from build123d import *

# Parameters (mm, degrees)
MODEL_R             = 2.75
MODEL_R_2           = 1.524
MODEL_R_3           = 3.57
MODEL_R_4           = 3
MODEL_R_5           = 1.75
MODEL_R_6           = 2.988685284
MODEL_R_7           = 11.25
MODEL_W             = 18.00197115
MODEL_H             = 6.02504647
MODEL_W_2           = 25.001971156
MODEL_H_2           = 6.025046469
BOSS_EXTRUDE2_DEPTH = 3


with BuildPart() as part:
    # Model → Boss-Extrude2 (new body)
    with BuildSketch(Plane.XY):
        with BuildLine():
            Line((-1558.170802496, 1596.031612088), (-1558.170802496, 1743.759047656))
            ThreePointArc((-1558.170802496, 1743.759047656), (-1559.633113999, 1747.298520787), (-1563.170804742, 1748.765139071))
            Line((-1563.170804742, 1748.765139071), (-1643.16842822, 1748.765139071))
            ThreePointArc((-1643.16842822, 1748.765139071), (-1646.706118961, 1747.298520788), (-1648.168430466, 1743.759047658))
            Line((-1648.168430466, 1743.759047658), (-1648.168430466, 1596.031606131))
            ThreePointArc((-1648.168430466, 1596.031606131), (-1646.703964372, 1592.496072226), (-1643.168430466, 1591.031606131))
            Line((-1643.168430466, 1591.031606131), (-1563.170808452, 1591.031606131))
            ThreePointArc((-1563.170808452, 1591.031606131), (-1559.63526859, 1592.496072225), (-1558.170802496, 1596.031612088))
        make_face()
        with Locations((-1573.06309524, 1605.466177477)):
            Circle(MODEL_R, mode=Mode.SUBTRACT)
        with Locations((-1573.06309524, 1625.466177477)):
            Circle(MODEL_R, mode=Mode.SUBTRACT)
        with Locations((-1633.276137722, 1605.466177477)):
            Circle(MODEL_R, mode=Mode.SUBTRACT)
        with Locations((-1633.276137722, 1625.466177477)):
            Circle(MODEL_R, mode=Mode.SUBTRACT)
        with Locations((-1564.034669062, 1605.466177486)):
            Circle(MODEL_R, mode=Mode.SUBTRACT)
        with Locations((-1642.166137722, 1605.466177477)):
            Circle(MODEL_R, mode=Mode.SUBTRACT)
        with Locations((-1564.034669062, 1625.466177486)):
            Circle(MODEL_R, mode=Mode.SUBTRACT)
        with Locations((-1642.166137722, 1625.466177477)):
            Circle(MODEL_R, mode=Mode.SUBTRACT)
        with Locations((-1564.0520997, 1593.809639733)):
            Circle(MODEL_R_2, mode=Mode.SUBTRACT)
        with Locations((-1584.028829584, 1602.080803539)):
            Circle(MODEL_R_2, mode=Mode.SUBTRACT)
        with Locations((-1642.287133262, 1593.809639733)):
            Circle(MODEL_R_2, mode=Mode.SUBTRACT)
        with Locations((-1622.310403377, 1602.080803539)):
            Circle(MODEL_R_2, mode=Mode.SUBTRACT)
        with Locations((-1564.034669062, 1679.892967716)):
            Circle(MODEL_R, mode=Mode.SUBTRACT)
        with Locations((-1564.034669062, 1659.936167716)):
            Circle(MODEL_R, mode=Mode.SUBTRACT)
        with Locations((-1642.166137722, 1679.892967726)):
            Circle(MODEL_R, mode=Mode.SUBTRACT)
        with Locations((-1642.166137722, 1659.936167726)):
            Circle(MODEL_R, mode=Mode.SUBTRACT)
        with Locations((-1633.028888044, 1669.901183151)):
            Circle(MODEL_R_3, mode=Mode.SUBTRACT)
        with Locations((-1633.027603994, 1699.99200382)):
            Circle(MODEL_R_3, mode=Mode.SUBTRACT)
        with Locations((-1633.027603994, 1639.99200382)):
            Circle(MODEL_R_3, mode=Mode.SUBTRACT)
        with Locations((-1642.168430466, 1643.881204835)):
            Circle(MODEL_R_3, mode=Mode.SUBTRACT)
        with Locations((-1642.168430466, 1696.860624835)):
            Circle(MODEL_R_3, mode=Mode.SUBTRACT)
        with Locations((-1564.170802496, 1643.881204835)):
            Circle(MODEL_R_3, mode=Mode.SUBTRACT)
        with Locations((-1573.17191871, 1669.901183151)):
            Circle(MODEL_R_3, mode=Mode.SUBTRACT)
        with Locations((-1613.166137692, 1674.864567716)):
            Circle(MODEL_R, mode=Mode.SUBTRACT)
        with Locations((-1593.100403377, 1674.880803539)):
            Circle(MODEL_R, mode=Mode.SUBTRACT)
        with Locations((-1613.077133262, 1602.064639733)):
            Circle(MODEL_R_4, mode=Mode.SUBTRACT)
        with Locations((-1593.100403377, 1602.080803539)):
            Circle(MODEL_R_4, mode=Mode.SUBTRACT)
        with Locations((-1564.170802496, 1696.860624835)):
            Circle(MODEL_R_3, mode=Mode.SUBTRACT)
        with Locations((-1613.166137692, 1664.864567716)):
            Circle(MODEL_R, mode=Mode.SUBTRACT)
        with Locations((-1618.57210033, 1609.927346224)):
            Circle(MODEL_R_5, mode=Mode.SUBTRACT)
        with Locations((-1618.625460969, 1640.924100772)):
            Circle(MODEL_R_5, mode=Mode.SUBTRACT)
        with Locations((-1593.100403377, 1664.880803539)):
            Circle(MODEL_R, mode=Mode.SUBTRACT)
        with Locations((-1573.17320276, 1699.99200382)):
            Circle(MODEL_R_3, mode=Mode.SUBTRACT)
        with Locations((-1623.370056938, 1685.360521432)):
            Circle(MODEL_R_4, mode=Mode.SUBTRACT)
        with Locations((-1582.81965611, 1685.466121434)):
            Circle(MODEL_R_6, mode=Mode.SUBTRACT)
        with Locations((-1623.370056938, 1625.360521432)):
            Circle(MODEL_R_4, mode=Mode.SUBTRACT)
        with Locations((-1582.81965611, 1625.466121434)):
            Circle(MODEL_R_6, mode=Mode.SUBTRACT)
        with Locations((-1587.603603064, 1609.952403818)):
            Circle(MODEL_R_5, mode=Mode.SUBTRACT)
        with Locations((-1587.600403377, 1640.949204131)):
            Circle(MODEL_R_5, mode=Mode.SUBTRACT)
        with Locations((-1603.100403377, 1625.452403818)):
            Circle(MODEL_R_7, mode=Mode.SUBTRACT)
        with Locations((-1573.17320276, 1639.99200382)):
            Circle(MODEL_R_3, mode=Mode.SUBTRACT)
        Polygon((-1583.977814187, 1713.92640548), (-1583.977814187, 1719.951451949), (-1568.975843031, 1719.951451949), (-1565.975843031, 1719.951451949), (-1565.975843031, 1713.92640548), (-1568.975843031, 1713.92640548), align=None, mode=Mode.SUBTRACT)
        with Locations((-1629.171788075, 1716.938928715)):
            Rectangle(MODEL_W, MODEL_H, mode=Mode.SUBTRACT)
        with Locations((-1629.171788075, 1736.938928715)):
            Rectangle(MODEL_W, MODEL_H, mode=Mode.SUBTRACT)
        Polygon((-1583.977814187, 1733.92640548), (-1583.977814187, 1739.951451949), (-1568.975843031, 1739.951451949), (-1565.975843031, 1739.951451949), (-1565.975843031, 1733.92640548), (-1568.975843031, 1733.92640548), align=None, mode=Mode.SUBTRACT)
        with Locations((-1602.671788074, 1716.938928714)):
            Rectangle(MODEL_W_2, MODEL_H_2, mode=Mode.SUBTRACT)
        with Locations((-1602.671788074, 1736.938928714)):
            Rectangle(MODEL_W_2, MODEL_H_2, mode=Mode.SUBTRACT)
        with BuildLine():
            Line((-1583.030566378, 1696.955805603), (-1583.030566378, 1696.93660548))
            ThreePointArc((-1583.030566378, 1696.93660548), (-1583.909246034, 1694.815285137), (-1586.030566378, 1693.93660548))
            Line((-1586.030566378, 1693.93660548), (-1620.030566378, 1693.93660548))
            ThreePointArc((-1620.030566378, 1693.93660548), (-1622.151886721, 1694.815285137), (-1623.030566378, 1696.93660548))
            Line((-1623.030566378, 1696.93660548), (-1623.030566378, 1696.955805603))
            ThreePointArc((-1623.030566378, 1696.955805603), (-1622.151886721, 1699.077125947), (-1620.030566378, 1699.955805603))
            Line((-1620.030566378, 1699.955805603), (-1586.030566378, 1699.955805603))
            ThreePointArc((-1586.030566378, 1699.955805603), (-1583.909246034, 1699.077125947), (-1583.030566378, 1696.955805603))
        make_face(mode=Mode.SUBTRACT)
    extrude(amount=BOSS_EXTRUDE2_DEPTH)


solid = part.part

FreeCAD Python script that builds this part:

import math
import FreeCAD as App
import Part
import Sketcher
from FreeCAD import Vector
Q = App.Units.Quantity

doc = App.newDocument("Part")
body = doc.addObject("PartDesign::Body", "Body")

# Sketch on XY plane
sketch1 = doc.addObject("Sketcher::SketchObject", "Sketch")
body.addObject(sketch1)
sketch1.AttachmentSupport = (doc.XY_Plane, [""])
sketch1.MapMode = "FlatFace"
sketch1.addGeometry(Part.LineSegment(Vector(-1558.170802, 1596.031612, 0), Vector(-1558.170802, 1743.759048, 0)), False)
sketch1.addGeometry(Part.ArcOfCircle(Part.Circle(Vector(-1563.170799, 1743.765139, 0), Vector(0, 0, 1), 5), math.radians(-0.069802), math.radians(90.000068)), False)
sketch1.addGeometry(Part.LineSegment(Vector(-1563.170805, 1748.765139, 0), Vector(-1643.168428, 1748.765139, 0)), False)
sketch1.addGeometry(Part.ArcOfCircle(Part.Circle(Vector(-1643.168434, 1743.765139, 0), Vector(0, 0, 1), 5), math.radians(89.999932), math.radians(180.069802)), False)
sketch1.addGeometry(Part.LineSegment(Vector(-1648.16843, 1743.759048, 0), Vector(-1648.16843, 1596.031606, 0)), False)
sketch1.addGeometry(Part.ArcOfCircle(Part.Circle(Vector(-1643.16843, 1596.031606, 0), Vector(0, 0, 1), 5), math.radians(-180), math.radians(-90)), False)
sketch1.addGeometry(Part.LineSegment(Vector(-1643.16843, 1591.031606, 0), Vector(-1563.170808, 1591.031606, 0)), False)
sketch1.addGeometry(Part.ArcOfCircle(Part.Circle(Vector(-1563.170802, 1596.031606, 0), Vector(0, 0, 1), 5), math.radians(-90.000068), math.radians(0.000068)), False)
sketch1.addGeometry(Part.Circle(Vector(-1642.287133, 1593.80964, 0), Vector(0, 0, 1), 1.524), False)
sketch1.addGeometry(Part.Circle(Vector(-1642.166138, 1605.466177, 0), Vector(0, 0, 1), 2.75), False)
sketch1.addGeometry(Part.Circle(Vector(-1633.276138, 1605.466177, 0), Vector(0, 0, 1), 2.75), False)
sketch1.addGeometry(Part.Circle(Vector(-1642.166138, 1625.466177, 0), Vector(0, 0, 1), 2.75), False)
sketch1.addGeometry(Part.Circle(Vector(-1633.276138, 1625.466177, 0), Vector(0, 0, 1), 2.75), False)
sketch1.addGeometry(Part.Circle(Vector(-1622.310403, 1602.080804, 0), Vector(0, 0, 1), 1.524), False)
sketch1.addGeometry(Part.Circle(Vector(-1618.5721, 1609.927346, 0), Vector(0, 0, 1), 1.75), False)
sketch1.addGeometry(Part.Circle(Vector(-1613.077133, 1602.06464, 0), Vector(0, 0, 1), 3), False)
sketch1.addGeometry(Part.Circle(Vector(-1623.370057, 1625.360521, 0), Vector(0, 0, 1), 3), False)
sketch1.addGeometry(Part.Circle(Vector(-1642.16843, 1643.881205, 0), Vector(0, 0, 1), 3.57), False)
sketch1.addGeometry(Part.Circle(Vector(-1633.027604, 1639.992004, 0), Vector(0, 0, 1), 3.57), False)
sketch1.addGeometry(Part.Circle(Vector(-1642.166138, 1659.936168, 0), Vector(0, 0, 1), 2.75), False)
sketch1.addGeometry(Part.Circle(Vector(-1618.625461, 1640.924101, 0), Vector(0, 0, 1), 1.75), False)
sketch1.addGeometry(Part.Circle(Vector(-1613.166138, 1664.864568, 0), Vector(0, 0, 1), 2.75), False)
sketch1.addGeometry(Part.Circle(Vector(-1593.100403, 1602.080804, 0), Vector(0, 0, 1), 3), False)
sketch1.addGeometry(Part.Circle(Vector(-1587.603603, 1609.952404, 0), Vector(0, 0, 1), 1.75), False)
sketch1.addGeometry(Part.Circle(Vector(-1584.02883, 1602.080804, 0), Vector(0, 0, 1), 1.524), False)
sketch1.addGeometry(Part.Circle(Vector(-1603.100403, 1625.452404, 0), Vector(0, 0, 1), 11.25), False)
sketch1.addGeometry(Part.Circle(Vector(-1582.819656, 1625.466121, 0), Vector(0, 0, 1), 2.988685), False)
sketch1.addGeometry(Part.Circle(Vector(-1573.063095, 1605.466177, 0), Vector(0, 0, 1), 2.75), False)
sketch1.addGeometry(Part.Circle(Vector(-1564.0521, 1593.80964, 0), Vector(0, 0, 1), 1.524), False)
sketch1.addGeometry(Part.Circle(Vector(-1564.034669, 1605.466177, 0), Vector(0, 0, 1), 2.75), False)
sketch1.addGeometry(Part.Circle(Vector(-1573.063095, 1625.466177, 0), Vector(0, 0, 1), 2.75), False)
sketch1.addGeometry(Part.Circle(Vector(-1564.034669, 1625.466177, 0), Vector(0, 0, 1), 2.75), False)
sketch1.addGeometry(Part.Circle(Vector(-1587.600403, 1640.949204, 0), Vector(0, 0, 1), 1.75), False)
sketch1.addGeometry(Part.Circle(Vector(-1593.100403, 1664.880804, 0), Vector(0, 0, 1), 2.75), False)
sketch1.addGeometry(Part.Circle(Vector(-1573.173203, 1639.992004, 0), Vector(0, 0, 1), 3.57), False)
sketch1.addGeometry(Part.Circle(Vector(-1564.170802, 1643.881205, 0), Vector(0, 0, 1), 3.57), False)
sketch1.addGeometry(Part.Circle(Vector(-1564.034669, 1659.936168, 0), Vector(0, 0, 1), 2.75), False)
sketch1.addGeometry(Part.Circle(Vector(-1642.166138, 1679.892968, 0), Vector(0, 0, 1), 2.75), False)
sketch1.addGeometry(Part.Circle(Vector(-1633.028888, 1669.901183, 0), Vector(0, 0, 1), 3.57), False)
sketch1.addGeometry(Part.Circle(Vector(-1642.16843, 1696.860625, 0), Vector(0, 0, 1), 3.57), False)
sketch1.addGeometry(Part.Circle(Vector(-1633.027604, 1699.992004, 0), Vector(0, 0, 1), 3.57), False)
sketch1.addGeometry(Part.Circle(Vector(-1613.166138, 1674.864568, 0), Vector(0, 0, 1), 2.75), False)
sketch1.addGeometry(Part.Circle(Vector(-1623.370057, 1685.360521, 0), Vector(0, 0, 1), 3), False)
sketch1.addGeometry(Part.LineSegment(Vector(-1620.170803, 1713.926405, 0), Vector(-1638.172774, 1713.926405, 0)), False)
sketch1.addGeometry(Part.LineSegment(Vector(-1638.172774, 1713.926405, 0), Vector(-1638.172774, 1719.951452, 0)), False)
sketch1.addGeometry(Part.LineSegment(Vector(-1638.172774, 1719.951452, 0), Vector(-1620.170803, 1719.951452, 0)), False)
sketch1.addGeometry(Part.LineSegment(Vector(-1620.170803, 1719.951452, 0), Vector(-1620.170803, 1713.926405, 0)), False)
sketch1.addGeometry(Part.LineSegment(Vector(-1620.170803, 1733.926405, 0), Vector(-1638.172774, 1733.926405, 0)), False)
sketch1.addGeometry(Part.LineSegment(Vector(-1638.172774, 1733.926405, 0), Vector(-1638.172774, 1739.951452, 0)), False)
sketch1.addGeometry(Part.LineSegment(Vector(-1638.172774, 1739.951452, 0), Vector(-1620.170803, 1739.951452, 0)), False)
sketch1.addGeometry(Part.LineSegment(Vector(-1620.170803, 1739.951452, 0), Vector(-1620.170803, 1733.926405, 0)), False)
sketch1.addGeometry(Part.Circle(Vector(-1593.100403, 1674.880804, 0), Vector(0, 0, 1), 2.75), False)
sketch1.addGeometry(Part.ArcOfCircle(Part.Circle(Vector(-1586.030566, 1696.955806, 0), Vector(0, 0, 1), 3), math.radians(0), math.radians(90)), False)
sketch1.addGeometry(Part.LineSegment(Vector(-1583.030566, 1696.955806, 0), Vector(-1583.030566, 1696.936605, 0)), False)
sketch1.addGeometry(Part.ArcOfCircle(Part.Circle(Vector(-1586.030566, 1696.936605, 0), Vector(0, 0, 1), 3), math.radians(-90), math.radians(0)), False)
sketch1.addGeometry(Part.LineSegment(Vector(-1586.030566, 1693.936605, 0), Vector(-1620.030566, 1693.936605, 0)), False)
sketch1.addGeometry(Part.ArcOfCircle(Part.Circle(Vector(-1620.030566, 1696.936605, 0), Vector(0, 0, 1), 3), math.radians(-180), math.radians(-90)), False)
sketch1.addGeometry(Part.LineSegment(Vector(-1623.030566, 1696.936605, 0), Vector(-1623.030566, 1696.955806, 0)), False)
sketch1.addGeometry(Part.ArcOfCircle(Part.Circle(Vector(-1620.030566, 1696.955806, 0), Vector(0, 0, 1), 3), math.radians(90), math.radians(180)), False)
sketch1.addGeometry(Part.LineSegment(Vector(-1620.030566, 1699.955806, 0), Vector(-1586.030566, 1699.955806, 0)), False)
sketch1.addGeometry(Part.Circle(Vector(-1582.819656, 1685.466121, 0), Vector(0, 0, 1), 2.988685), False)
sketch1.addGeometry(Part.Circle(Vector(-1573.171919, 1669.901183, 0), Vector(0, 0, 1), 3.57), False)
sketch1.addGeometry(Part.Circle(Vector(-1564.034669, 1679.892968, 0), Vector(0, 0, 1), 2.75), False)
sketch1.addGeometry(Part.Circle(Vector(-1573.173203, 1699.992004, 0), Vector(0, 0, 1), 3.57), False)
sketch1.addGeometry(Part.Circle(Vector(-1564.170802, 1696.860625, 0), Vector(0, 0, 1), 3.57), False)
sketch1.addGeometry(Part.LineSegment(Vector(-1590.170802, 1713.926405, 0), Vector(-1615.172774, 1713.926405, 0)), False)
sketch1.addGeometry(Part.LineSegment(Vector(-1615.172774, 1713.926405, 0), Vector(-1615.172774, 1719.951452, 0)), False)
sketch1.addGeometry(Part.LineSegment(Vector(-1615.172774, 1719.951452, 0), Vector(-1590.170802, 1719.951452, 0)), False)
sketch1.addGeometry(Part.LineSegment(Vector(-1590.170802, 1719.951452, 0), Vector(-1590.170802, 1713.926405, 0)), False)
sketch1.addGeometry(Part.LineSegment(Vector(-1590.170802, 1733.926405, 0), Vector(-1615.172774, 1733.926405, 0)), False)
sketch1.addGeometry(Part.LineSegment(Vector(-1615.172774, 1733.926405, 0), Vector(-1615.172774, 1739.951452, 0)), False)
sketch1.addGeometry(Part.LineSegment(Vector(-1615.172774, 1739.951452, 0), Vector(-1590.170802, 1739.951452, 0)), False)
sketch1.addGeometry(Part.LineSegment(Vector(-1590.170802, 1739.951452, 0), Vector(-1590.170802, 1733.926405, 0)), False)
sketch1.addGeometry(Part.LineSegment(Vector(-1565.975843, 1713.926405, 0), Vector(-1583.977814, 1713.926405, 0)), False)
sketch1.addGeometry(Part.LineSegment(Vector(-1583.977814, 1713.926405, 0), Vector(-1583.977814, 1719.951452, 0)), False)
sketch1.addGeometry(Part.LineSegment(Vector(-1583.977814, 1719.951452, 0), Vector(-1565.975843, 1719.951452, 0)), False)
sketch1.addGeometry(Part.LineSegment(Vector(-1565.975843, 1719.951452, 0), Vector(-1565.975843, 1713.926405, 0)), False)
sketch1.addGeometry(Part.LineSegment(Vector(-1565.975843, 1733.926405, 0), Vector(-1583.977814, 1733.926405, 0)), False)
sketch1.addGeometry(Part.LineSegment(Vector(-1583.977814, 1733.926405, 0), Vector(-1583.977814, 1739.951452, 0)), False)
sketch1.addGeometry(Part.LineSegment(Vector(-1583.977814, 1739.951452, 0), Vector(-1565.975843, 1739.951452, 0)), False)
sketch1.addGeometry(Part.LineSegment(Vector(-1565.975843, 1739.951452, 0), Vector(-1565.975843, 1733.926405, 0)), False)
sketch1.addConstraint(Sketcher.Constraint("Coincident", 0, 2, 1, 1))
sketch1.addConstraint(Sketcher.Constraint("Tangent", 1, 2, 2, 1))
sketch1.addConstraint(Sketcher.Constraint("Tangent", 2, 2, 3, 1))
sketch1.addConstraint(Sketcher.Constraint("Coincident", 3, 2, 4, 1))
sketch1.addConstraint(Sketcher.Constraint("Tangent", 4, 2, 5, 1))
sketch1.addConstraint(Sketcher.Constraint("Tangent", 5, 2, 6, 1))
sketch1.addConstraint(Sketcher.Constraint("Tangent", 6, 2, 7, 1))
sketch1.addConstraint(Sketcher.Constraint("Tangent", 7, 2, 0, 1))
sketch1.addConstraint(Sketcher.Constraint("Coincident", 43, 2, 44, 1))
sketch1.addConstraint(Sketcher.Constraint("Coincident", 44, 2, 45, 1))
sketch1.addConstraint(Sketcher.Constraint("Coincident", 45, 2, 46, 1))
sketch1.addConstraint(Sketcher.Constraint("Coincident", 46, 2, 43, 1))
sketch1.addConstraint(Sketcher.Constraint("Coincident", 47, 2, 48, 1))
sketch1.addConstraint(Sketcher.Constraint("Coincident", 48, 2, 49, 1))
sketch1.addConstraint(Sketcher.Constraint("Coincident", 49, 2, 50, 1))
sketch1.addConstraint(Sketcher.Constraint("Coincident", 50, 2, 47, 1))
sketch1.addConstraint(Sketcher.Constraint("Tangent", 52, 1, 53, 1))
sketch1.addConstraint(Sketcher.Constraint("Tangent", 53, 2, 54, 2))
sketch1.addConstraint(Sketcher.Constraint("Tangent", 54, 1, 55, 1))
sketch1.addConstraint(Sketcher.Constraint("Tangent", 55, 2, 56, 2))
sketch1.addConstraint(Sketcher.Constraint("Tangent", 56, 1, 57, 1))
sketch1.addConstraint(Sketcher.Constraint("Tangent", 57, 2, 58, 2))
sketch1.addConstraint(Sketcher.Constraint("Tangent", 58, 1, 59, 1))
sketch1.addConstraint(Sketcher.Constraint("Tangent", 59, 2, 52, 2))
sketch1.addConstraint(Sketcher.Constraint("Coincident", 65, 2, 66, 1))
sketch1.addConstraint(Sketcher.Constraint("Coincident", 66, 2, 67, 1))
sketch1.addConstraint(Sketcher.Constraint("Coincident", 67, 2, 68, 1))
sketch1.addConstraint(Sketcher.Constraint("Coincident", 68, 2, 65, 1))
sketch1.addConstraint(Sketcher.Constraint("Coincident", 69, 2, 70, 1))
sketch1.addConstraint(Sketcher.Constraint("Coincident", 70, 2, 71, 1))
sketch1.addConstraint(Sketcher.Constraint("Coincident", 71, 2, 72, 1))
sketch1.addConstraint(Sketcher.Constraint("Coincident", 72, 2, 69, 1))
sketch1.addConstraint(Sketcher.Constraint("Coincident", 73, 2, 74, 1))
sketch1.addConstraint(Sketcher.Constraint("Coincident", 74, 2, 75, 1))
sketch1.addConstraint(Sketcher.Constraint("Coincident", 75, 2, 76, 1))
sketch1.addConstraint(Sketcher.Constraint("Coincident", 76, 2, 73, 1))
sketch1.addConstraint(Sketcher.Constraint("Coincident", 77, 2, 78, 1))
sketch1.addConstraint(Sketcher.Constraint("Coincident", 78, 2, 79, 1))
sketch1.addConstraint(Sketcher.Constraint("Coincident", 79, 2, 80, 1))
sketch1.addConstraint(Sketcher.Constraint("Coincident", 80, 2, 77, 1))
sketch1.addConstraint(Sketcher.Constraint("Vertical", 0))
sketch1.addConstraint(Sketcher.Constraint("Horizontal", 2))
sketch1.addConstraint(Sketcher.Constraint("Vertical", 4))
sketch1.addConstraint(Sketcher.Constraint("Horizontal", 6))
sketch1.addConstraint(Sketcher.Constraint("Horizontal", 43))
sketch1.addConstraint(Sketcher.Constraint("Vertical", 44))
sketch1.addConstraint(Sketcher.Constraint("Horizontal", 45))
sketch1.addConstraint(Sketcher.Constraint("Vertical", 46))
sketch1.addConstraint(Sketcher.Constraint("Horizontal", 47))
sketch1.addConstraint(Sketcher.Constraint("Vertical", 48))
sketch1.addConstraint(Sketcher.Constraint("Horizontal", 49))
sketch1.addConstraint(Sketcher.Constraint("Vertical", 50))
sketch1.addConstraint(Sketcher.Constraint("Vertical", 53))
sketch1.addConstraint(Sketcher.Constraint("Horizontal", 55))
sketch1.addConstraint(Sketcher.Constraint("Vertical", 57))
sketch1.addConstraint(Sketcher.Constraint("Horizontal", 59))
sketch1.addConstraint(Sketcher.Constraint("Horizontal", 65))
sketch1.addConstraint(Sketcher.Constraint("Vertical", 66))
sketch1.addConstraint(Sketcher.Constraint("Horizontal", 67))
sketch1.addConstraint(Sketcher.Constraint("Vertical", 68))
sketch1.addConstraint(Sketcher.Constraint("Horizontal", 69))
sketch1.addConstraint(Sketcher.Constraint("Vertical", 70))
sketch1.addConstraint(Sketcher.Constraint("Horizontal", 71))
sketch1.addConstraint(Sketcher.Constraint("Vertical", 72))
sketch1.addConstraint(Sketcher.Constraint("Horizontal", 73))
sketch1.addConstraint(Sketcher.Constraint("Vertical", 74))
sketch1.addConstraint(Sketcher.Constraint("Horizontal", 75))
sketch1.addConstraint(Sketcher.Constraint("Vertical", 76))
sketch1.addConstraint(Sketcher.Constraint("Horizontal", 77))
sketch1.addConstraint(Sketcher.Constraint("Vertical", 78))
sketch1.addConstraint(Sketcher.Constraint("Horizontal", 79))
sketch1.addConstraint(Sketcher.Constraint("Vertical", 80))
sketch1.addConstraint(Sketcher.Constraint("Equal", 1, 3))
sketch1.addConstraint(Sketcher.Constraint("Equal", 3, 5))
sketch1.addConstraint(Sketcher.Constraint("Equal", 5, 7))
sketch1.addConstraint(Sketcher.Constraint("Equal", 9, 10))
sketch1.addConstraint(Sketcher.Constraint("Equal", 10, 11))
sketch1.addConstraint(Sketcher.Constraint("Equal", 11, 12))
sketch1.addConstraint(Sketcher.Constraint("Equal", 8, 13))
sketch1.addConstraint(Sketcher.Constraint("Equal", 15, 16))
sketch1.addConstraint(Sketcher.Constraint("Equal", 17, 18))
sketch1.addConstraint(Sketcher.Constraint("Equal", 12, 19))
sketch1.addConstraint(Sketcher.Constraint("Equal", 14, 20))
sketch1.addConstraint(Sketcher.Constraint("Equal", 19, 21))
sketch1.addConstraint(Sketcher.Constraint("Equal", 16, 22))
sketch1.addConstraint(Sketcher.Constraint("Equal", 20, 23))
sketch1.addConstraint(Sketcher.Constraint("Equal", 13, 24))
sketch1.addConstraint(Sketcher.Constraint("Equal", 21, 27))
sketch1.addConstraint(Sketcher.Constraint("Equal", 24, 28))
sketch1.addConstraint(Sketcher.Constraint("Equal", 27, 29))
sketch1.addConstraint(Sketcher.Constraint("Equal", 29, 30))
sketch1.addConstraint(Sketcher.Constraint("Equal", 30, 31))
sketch1.addConstraint(Sketcher.Constraint("Equal", 23, 32))
sketch1.addConstraint(Sketcher.Constraint("Equal", 31, 33))
sketch1.addConstraint(Sketcher.Constraint("Equal", 18, 34))
sketch1.addConstraint(Sketcher.Constraint("Equal", 34, 35))
sketch1.addConstraint(Sketcher.Constraint("Equal", 33, 36))
sketch1.addConstraint(Sketcher.Constraint("Equal", 36, 37))
sketch1.addConstraint(Sketcher.Constraint("Equal", 35, 38))
sketch1.addConstraint(Sketcher.Constraint("Equal", 38, 39))
sketch1.addConstraint(Sketcher.Constraint("Equal", 39, 40))
sketch1.addConstraint(Sketcher.Constraint("Equal", 37, 41))
sketch1.addConstraint(Sketcher.Constraint("Equal", 22, 42))
sketch1.addConstraint(Sketcher.Constraint("Equal", 41, 51))
sketch1.addConstraint(Sketcher.Constraint("Equal", 42, 52))
sketch1.addConstraint(Sketcher.Constraint("Equal", 52, 54))
sketch1.addConstraint(Sketcher.Constraint("Equal", 54, 56))
sketch1.addConstraint(Sketcher.Constraint("Equal", 56, 58))
sketch1.addConstraint(Sketcher.Constraint("Equal", 26, 60))
sketch1.addConstraint(Sketcher.Constraint("Equal", 40, 61))
sketch1.addConstraint(Sketcher.Constraint("Equal", 51, 62))
sketch1.addConstraint(Sketcher.Constraint("Equal", 61, 63))
sketch1.addConstraint(Sketcher.Constraint("Equal", 63, 64))
sketch1.addConstraint(Sketcher.Constraint("Horizontal", 9, 3, 10, 3))
sketch1.addConstraint(Sketcher.Constraint("Horizontal", 11, 3, 12, 3))
sketch1.addConstraint(Sketcher.Constraint("Horizontal", 13, 3, 22, 3))
sketch1.addConstraint(Sketcher.Constraint("Horizontal", 22, 3, 24, 3))
sketch1.addConstraint(Sketcher.Constraint("Horizontal", 10, 3, 27, 3))
sketch1.addConstraint(Sketcher.Constraint("Horizontal", 8, 3, 28, 3))
sketch1.addConstraint(Sketcher.Constraint("Horizontal", 27, 3, 29, 3))
sketch1.addConstraint(Sketcher.Constraint("Horizontal", 12, 3, 30, 3))
sketch1.addConstraint(Sketcher.Constraint("Horizontal", 30, 3, 31, 3))
sketch1.addConstraint(Sketcher.Constraint("Horizontal", 18, 3, 34, 3))
sketch1.addConstraint(Sketcher.Constraint("Horizontal", 17, 3, 35, 3))
sketch1.addConstraint(Sketcher.Constraint("Horizontal", 19, 3, 36, 3))
sketch1.addConstraint(Sketcher.Constraint("Horizontal", 38, 3, 61, 3))
sketch1.addConstraint(Sketcher.Constraint("Horizontal", 37, 3, 62, 3))
sketch1.addConstraint(Sketcher.Constraint("Horizontal", 40, 3, 63, 3))
sketch1.addConstraint(Sketcher.Constraint("Horizontal", 39, 3, 64, 3))
sketch1.addConstraint(Sketcher.Constraint("Horizontal", 0, 2, 3, 2))
sketch1.addConstraint(Sketcher.Constraint("Horizontal", 46, 2, 65, 2))
sketch1.addConstraint(Sketcher.Constraint("Horizontal", 45, 2, 66, 2))
sketch1.addConstraint(Sketcher.Constraint("Horizontal", 50, 2, 69, 2))
sketch1.addConstraint(Sketcher.Constraint("Horizontal", 49, 2, 70, 2))
sketch1.addConstraint(Sketcher.Constraint("Horizontal", 68, 2, 73, 2))
sketch1.addConstraint(Sketcher.Constraint("Horizontal", 67, 2, 74, 2))
sketch1.addConstraint(Sketcher.Constraint("Horizontal", 72, 2, 77, 2))
sketch1.addConstraint(Sketcher.Constraint("Horizontal", 71, 2, 78, 2))
sketch1.addConstraint(Sketcher.Constraint("Vertical", 9, 3, 11, 3))
sketch1.addConstraint(Sketcher.Constraint("Vertical", 10, 3, 12, 3))
sketch1.addConstraint(Sketcher.Constraint("Vertical", 11, 3, 19, 3))
sketch1.addConstraint(Sketcher.Constraint("Vertical", 27, 3, 30, 3))
sketch1.addConstraint(Sketcher.Constraint("Vertical", 29, 3, 31, 3))
sketch1.addConstraint(Sketcher.Constraint("Vertical", 22, 3, 33, 3))
sketch1.addConstraint(Sketcher.Constraint("Vertical", 31, 3, 36, 3))
sketch1.addConstraint(Sketcher.Constraint("Vertical", 19, 3, 37, 3))
sketch1.addConstraint(Sketcher.Constraint("Vertical", 17, 3, 39, 3))
sketch1.addConstraint(Sketcher.Constraint("Vertical", 18, 3, 40, 3))
sketch1.addConstraint(Sketcher.Constraint("Vertical", 21, 3, 41, 3))
sketch1.addConstraint(Sketcher.Constraint("Vertical", 16, 3, 42, 3))
sketch1.addConstraint(Sketcher.Constraint("Vertical", 33, 3, 51, 3))
sketch1.addConstraint(Sketcher.Constraint("Vertical", 26, 3, 60, 3))
sketch1.addConstraint(Sketcher.Constraint("Vertical", 36, 3, 62, 3))
sketch1.addConstraint(Sketcher.Constraint("Vertical", 34, 3, 63, 3))
sketch1.addConstraint(Sketcher.Constraint("Vertical", 35, 3, 64, 3))
sketch1.addConstraint(Sketcher.Constraint("Vertical", 44, 2, 47, 2))
sketch1.addConstraint(Sketcher.Constraint("Vertical", 46, 2, 49, 2))
sketch1.addConstraint(Sketcher.Constraint("Vertical", 66, 2, 69, 2))
sketch1.addConstraint(Sketcher.Constraint("Vertical", 68, 2, 71, 2))
sketch1.addConstraint(Sketcher.Constraint("Vertical", 74, 2, 77, 2))
sketch1.addConstraint(Sketcher.Constraint("Vertical", 76, 2, 79, 2))
sketch1.addConstraint(Sketcher.Constraint("Equal", 49, 73))
sketch1.addConstraint(Sketcher.Constraint("Equal", 46, 48))
sketch1.addConstraint(Sketcher.Constraint("Diameter", 15, Q("6 mm")))
sketch1.addConstraint(Sketcher.Constraint("Radius", 1, Q("5 mm")))
sketch1.addConstraint(Sketcher.Constraint("Diameter", 9, Q("5.5 mm")))
sketch1.addConstraint(Sketcher.Constraint("Diameter", 14, Q("3.5 mm")))
sketch1.addConstraint(Sketcher.Constraint("Diameter", 25, Q("22.5 mm")))
sketch1.addConstraint(Sketcher.Constraint("Diameter", 17, Q("7.14 mm")))
sketch1.addConstraint(Sketcher.Constraint("DistanceX", 55, 2, 55, 1, Q("34 mm")))
sketch1.addConstraint(Sketcher.Constraint("Diameter", 8, Q("3.048 mm")))
sketch1.addConstraint(Sketcher.Constraint("Diameter", 26, Q("5.977371 mm")))
sketch1.addConstraint(Sketcher.Constraint("DistanceY", 53, 2, 53, 1, Q("0.0192 mm")))
sketch1.addConstraint(Sketcher.Constraint("DistanceX", 43, 2, 43, 1, Q("18.001971 mm")))
sketch1.addConstraint(Sketcher.Constraint("DistanceX", 65, 2, 65, 1, Q("25.001971 mm")))
sketch1.addConstraint(Sketcher.Constraint("DistanceY", 4, 2, 4, 1, Q("147.727442 mm")))
sketch1.addConstraint(Sketcher.Constraint("DistanceX", 1, 3, -1, 1, Q("1563.170799 mm")))
sketch1.addConstraint(Sketcher.Constraint("DistanceX", 14, 3, -1, 1, Q("1618.5721 mm")))
sketch1.addConstraint(Sketcher.Constraint("DistanceY", -1, 1, 20, 3, Q("1640.924101 mm")))
sketch1.addConstraint(Sketcher.Constraint("DistanceX", 28, 3, -1, 1, Q("1564.0521 mm")))
sketch1.addConstraint(Sketcher.Constraint("DistanceX", 2, 2, 2, 1, Q("79.997623 mm")))
sketch1.addConstraint(Sketcher.Constraint("DistanceY", 44, 1, 44, 2, Q("6.025046 mm")))
sketch1.addConstraint(Sketcher.Constraint("DistanceY", -1, 1, 1, 3, Q("1743.765139 mm")))
sketch1.addConstraint(Sketcher.Constraint("DistanceY", -1, 1, 8, 3, Q("1593.80964 mm")))
sketch1.addConstraint(Sketcher.Constraint("DistanceY", -1, 1, 15, 3, Q("1602.06464 mm")))
sketch1.addConstraint(Sketcher.Constraint("DistanceY", -1, 1, 16, 3, Q("1625.360521 mm")))
sketch1.addConstraint(Sketcher.Constraint("DistanceX", 17, 3, -1, 1, Q("1642.16843 mm")))
sketch1.addConstraint(Sketcher.Constraint("DistanceX", 20, 3, -1, 1, Q("1618.625461 mm")))
sketch1.addConstraint(Sketcher.Constraint("DistanceX", 24, 3, -1, 1, Q("1584.02883 mm")))
sketch1.addConstraint(Sketcher.Constraint("DistanceY", -1, 1, 26, 3, Q("1625.466121 mm")))
sketch1.addConstraint(Sketcher.Constraint("DistanceX", 29, 3, -1, 1, Q("1564.034669 mm")))
sketch1.addConstraint(Sketcher.Constraint("DistanceX", 38, 3, -1, 1, Q("1633.028888 mm")))
sketch1.addConstraint(Sketcher.Constraint("DistanceY", -1, 1, 42, 3, Q("1685.360521 mm")))
sketch1.addConstraint(Sketcher.Constraint("DistanceY", -1, 1, 60, 3, Q("1685.466121 mm")))
sketch1.addConstraint(Sketcher.Constraint("DistanceX", 61, 3, -1, 1, Q("1573.171919 mm")))
sketch1.addConstraint(Sketcher.Constraint("DistanceY", -1, 1, 44, 2, Q("1719.951452 mm")))
sketch1.addConstraint(Sketcher.Constraint("DistanceY", -1, 1, 48, 2, Q("1739.951452 mm")))
sketch1.addConstraint(Sketcher.Constraint("DistanceY", -1, 1, 5, 3, Q("1596.031606 mm")))
sketch1.addConstraint(Sketcher.Constraint("DistanceX", 8, 3, -1, 1, Q("1642.287133 mm")))
sketch1.addConstraint(Sketcher.Constraint("DistanceX", 9, 3, -1, 1, Q("1642.166138 mm")))
sketch1.addConstraint(Sketcher.Constraint("DistanceY", -1, 1, 9, 3, Q("1605.466177 mm")))
sketch1.addConstraint(Sketcher.Constraint("DistanceX", 10, 3, -1, 1, Q("1633.276138 mm")))
sketch1.addConstraint(Sketcher.Constraint("DistanceY", -1, 1, 11, 3, Q("1625.466177 mm")))
sketch1.addConstraint(Sketcher.Constraint("DistanceX", 13, 3, -1, 1, Q("1622.310403 mm")))
sketch1.addConstraint(Sketcher.Constraint("DistanceY", -1, 1, 13, 3, Q("1602.080804 mm")))
sketch1.addConstraint(Sketcher.Constraint("DistanceY", -1, 1, 14, 3, Q("1609.927346 mm")))
sketch1.addConstraint(Sketcher.Constraint("DistanceX", 15, 3, -1, 1, Q("1613.077133 mm")))
sketch1.addConstraint(Sketcher.Constraint("DistanceX", 16, 3, -1, 1, Q("1623.370057 mm")))
sketch1.addConstraint(Sketcher.Constraint("DistanceY", -1, 1, 17, 3, Q("1643.881205 mm")))
sketch1.addConstraint(Sketcher.Constraint("DistanceX", 18, 3, -1, 1, Q("1633.027604 mm")))
sketch1.addConstraint(Sketcher.Constraint("DistanceY", -1, 1, 18, 3, Q("1639.992004 mm")))
sketch1.addConstraint(Sketcher.Constraint("DistanceY", -1, 1, 19, 3, Q("1659.936168 mm")))
sketch1.addConstraint(Sketcher.Constraint("DistanceX", 21, 3, -1, 1, Q("1613.166138 mm")))
sketch1.addConstraint(Sketcher.Constraint("DistanceY", -1, 1, 21, 3, Q("1664.864568 mm")))
sketch1.addConstraint(Sketcher.Constraint("DistanceX", 22, 3, -1, 1, Q("1593.100403 mm")))
sketch1.addConstraint(Sketcher.Constraint("DistanceX", 23, 3, -1, 1, Q("1587.603603 mm")))
sketch1.addConstraint(Sketcher.Constraint("DistanceY", -1, 1, 23, 3, Q("1609.952404 mm")))
sketch1.addConstraint(Sketcher.Constraint("DistanceX", 25, 3, -1, 1, Q("1603.100403 mm")))
sketch1.addConstraint(Sketcher.Constraint("DistanceY", -1, 1, 25, 3, Q("1625.452404 mm")))
sketch1.addConstraint(Sketcher.Constraint("DistanceX", 26, 3, -1, 1, Q("1582.819656 mm")))
sketch1.addConstraint(Sketcher.Constraint("DistanceX", 27, 3, -1, 1, Q("1573.063095 mm")))
sketch1.addConstraint(Sketcher.Constraint("DistanceX", 32, 3, -1, 1, Q("1587.600403 mm")))
sketch1.addConstraint(Sketcher.Constraint("DistanceY", -1, 1, 32, 3, Q("1640.949204 mm")))
sketch1.addConstraint(Sketcher.Constraint("DistanceY", -1, 1, 33, 3, Q("1664.880804 mm")))
sketch1.addConstraint(Sketcher.Constraint("DistanceX", 34, 3, -1, 1, Q("1573.173203 mm")))
sketch1.addConstraint(Sketcher.Constraint("DistanceX", 35, 3, -1, 1, Q("1564.170802 mm")))
sketch1.addConstraint(Sketcher.Constraint("DistanceY", -1, 1, 37, 3, Q("1679.892968 mm")))
sketch1.addConstraint(Sketcher.Constraint("DistanceY", -1, 1, 38, 3, Q("1669.901183 mm")))
sketch1.addConstraint(Sketcher.Constraint("DistanceY", -1, 1, 39, 3, Q("1696.860625 mm")))
sketch1.addConstraint(Sketcher.Constraint("DistanceY", -1, 1, 40, 3, Q("1699.992004 mm")))
sketch1.addConstraint(Sketcher.Constraint("DistanceY", -1, 1, 41, 3, Q("1674.864568 mm")))
sketch1.addConstraint(Sketcher.Constraint("DistanceY", -1, 1, 51, 3, Q("1674.880804 mm")))
sketch1.addConstraint(Sketcher.Constraint("DistanceX", 52, 3, -1, 1, Q("1586.030566 mm")))
sketch1.addConstraint(Sketcher.Constraint("DistanceY", -1, 1, 52, 3, Q("1696.955806 mm")))
sketch1.addConstraint(Sketcher.Constraint("DistanceX", 43, 2, -1, 1, Q("1638.172774 mm")))
sketch1.addConstraint(Sketcher.Constraint("DistanceX", 65, 2, -1, 1, Q("1615.172774 mm")))
sketch1.addConstraint(Sketcher.Constraint("DistanceX", 73, 2, -1, 1, Q("1583.977814 mm")))
pad1 = doc.addObject("PartDesign::Pad", "Pad")
body.addObject(pad1)
pad1.Profile = sketch1
pad1.Length = 3

doc.recompute()
